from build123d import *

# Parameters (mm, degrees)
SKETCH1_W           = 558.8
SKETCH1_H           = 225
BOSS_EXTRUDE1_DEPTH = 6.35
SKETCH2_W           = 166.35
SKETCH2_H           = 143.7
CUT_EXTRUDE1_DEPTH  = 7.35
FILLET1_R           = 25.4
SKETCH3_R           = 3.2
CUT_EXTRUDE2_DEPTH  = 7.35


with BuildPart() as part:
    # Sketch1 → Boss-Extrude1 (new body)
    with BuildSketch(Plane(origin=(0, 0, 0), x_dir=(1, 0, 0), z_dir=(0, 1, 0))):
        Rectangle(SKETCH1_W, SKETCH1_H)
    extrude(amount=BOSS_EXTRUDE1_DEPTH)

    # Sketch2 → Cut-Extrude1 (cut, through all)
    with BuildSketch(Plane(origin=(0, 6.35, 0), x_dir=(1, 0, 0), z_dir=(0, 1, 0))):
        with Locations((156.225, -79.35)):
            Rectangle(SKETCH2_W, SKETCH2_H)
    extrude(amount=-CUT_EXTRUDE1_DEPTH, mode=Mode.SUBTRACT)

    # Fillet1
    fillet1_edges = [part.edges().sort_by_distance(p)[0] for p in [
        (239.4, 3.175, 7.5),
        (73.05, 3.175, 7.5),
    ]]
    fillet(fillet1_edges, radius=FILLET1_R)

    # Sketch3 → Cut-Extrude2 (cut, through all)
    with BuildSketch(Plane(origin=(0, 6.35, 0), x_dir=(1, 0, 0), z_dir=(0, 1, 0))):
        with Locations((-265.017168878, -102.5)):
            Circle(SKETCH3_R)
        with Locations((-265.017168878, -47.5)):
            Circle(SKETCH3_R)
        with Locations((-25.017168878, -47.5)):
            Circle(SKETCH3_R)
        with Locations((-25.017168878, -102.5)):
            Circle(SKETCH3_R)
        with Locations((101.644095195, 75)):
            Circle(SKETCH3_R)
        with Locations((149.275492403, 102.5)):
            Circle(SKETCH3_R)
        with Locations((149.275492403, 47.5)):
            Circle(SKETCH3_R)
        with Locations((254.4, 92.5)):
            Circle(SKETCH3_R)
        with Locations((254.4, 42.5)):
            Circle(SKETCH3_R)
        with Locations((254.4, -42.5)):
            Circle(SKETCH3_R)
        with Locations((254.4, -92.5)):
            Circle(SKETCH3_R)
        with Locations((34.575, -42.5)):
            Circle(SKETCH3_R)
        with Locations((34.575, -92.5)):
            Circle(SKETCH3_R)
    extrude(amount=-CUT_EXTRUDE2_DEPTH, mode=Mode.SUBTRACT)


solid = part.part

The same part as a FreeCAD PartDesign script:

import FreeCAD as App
import Part
import Sketcher
Q = App.Units.Quantity


def edges_at(feature, points):
    """Names of the edges that pass closest to the given points."""
    edges = feature.Shape.Edges
    near = lambda p: min(range(len(edges)), key=lambda i: edges[i].distToShape(Part.Vertex(*p))[0])
    return sorted({f"Edge{near(p) + 1}" for p in points})

doc = App.newDocument("Part")
body = doc.addObject("PartDesign::Body", "Body")

# Sketch on XZ plane
sketch1 = doc.addObject("Sketcher::SketchObject", "Sketch")
body.addObject(sketch1)
sketch1.AttachmentSupport = (doc.XZ_Plane, [""])
sketch1.MapMode = "FlatFace"
sketch1.addGeometry(Part.LineSegment(App.Vector(-279, -112, 0), App.Vector(-279, 112, 0)), False)
sketch1.addGeometry(Part.LineSegment(App.Vector(-279, 112, 0), App.Vector(279, 112, 0)), False)
sketch1.addGeometry(Part.LineSegment(App.Vector(279, 112, 0), App.Vector(279, -112, 0)), False)
sketch1.addGeometry(Part.LineSegment(App.Vector(279, -112, 0), App.Vector(-279, -112, 0)), False)
sketch1.addConstraint(Sketcher.Constraint("Coincident", 0, 2, 1, 1))
sketch1.addConstraint(Sketcher.Constraint("Coincident", 1, 2, 2, 1))
sketch1.addConstraint(Sketcher.Constraint("Coincident", 2, 2, 3, 1))
sketch1.addConstraint(Sketcher.Constraint("Coincident", 3, 2, 0, 1))
sketch1.addConstraint(Sketcher.Constraint("Vertical", 0))
sketch1.addConstraint(Sketcher.Constraint("Horizontal", 1))
sketch1.addConstraint(Sketcher.Constraint("Vertical", 2))
sketch1.addConstraint(Sketcher.Constraint("Horizontal", 3))
sketch1.addConstraint(Sketcher.Constraint("Symmetric", 0, 2, 2, 2, -1, 1))
sketch1.addConstraint(Sketcher.Constraint("DistanceY", 0, 1, 0, 2, Q("225 mm")))
sketch1.addConstraint(Sketcher.Constraint("DistanceX", 1, 1, 1, 2, Q("558.8 mm")))
pad1 = doc.addObject("PartDesign::Pad", "Pad")
body.addObject(pad1)
pad1.Profile = sketch1
pad1.Length = 6.35
pad1.Reversed = True

# Sketch on XZ plane
sketch2 = doc.addObject("Sketcher::SketchObject", "Sketch001")
body.addObject(sketch2)
sketch2.AttachmentSupport = (doc.XZ_Plane, [""])
sketch2.MapMode = "FlatFace"
sketch2.AttachmentOffset = App.Placement(App.Vector(0, 0, -6.35), App.Rotation())
sketch2.addGeometry(Part.LineSegment(App.Vector(73, 8, 0), App.Vector(73, 151, 0)), False)
sketch2.addGeometry(Part.LineSegment(App.Vector(73, 151, 0), App.Vector(239, 151, 0)), False)
sketch2.addGeometry(Part.LineSegment(App.Vector(239, 151, 0), App.Vector(239, 8, 0)), False)
sketch2.addGeometry(Part.LineSegment(App.Vector(239, 8, 0), App.Vector(73, 8, 0)), False)
sketch2.addConstraint(Sketcher.Constraint("Coincident", 0, 2, 1, 1))
sketch2.addConstraint(Sketcher.Constraint("Coincident", 1, 2, 2, 1))
sketch2.addConstraint(Sketcher.Constraint("Coincident", 2, 2, 3, 1))
sketch2.addConstraint(Sketcher.Constraint("Coincident", 3, 2, 0, 1))
sketch2.addConstraint(Sketcher.Constraint("Vertical", 0))
sketch2.addConstraint(Sketcher.Constraint("Horizontal", 1))
sketch2.addConstraint(Sketcher.Constraint("Vertical", 2))
sketch2.addConstraint(Sketcher.Constraint("Horizontal", 3))
sketch2.addConstraint(Sketcher.Constraint("DistanceY", 0, 1, 0, 2, Q("143.7 mm")))
sketch2.addConstraint(Sketcher.Constraint("DistanceX", 1, 1, 1, 2, Q("166.35 mm")))
sketch2.addConstraint(Sketcher.Constraint("DistanceY", -1, 1, 0, 2, Q("151.2 mm")))
sketch2.addConstraint(Sketcher.Constraint("DistanceX", -1, 1, 1, 2, Q("239.4 mm")))
pocket1 = doc.addObject("PartDesign::Pocket", "Pocket")
body.addObject(pocket1)
pocket1.Profile = sketch2
pocket1.Type = "ThroughAll"
pocket1.Reversed = True
doc.recompute()

fillet = doc.addObject("PartDesign::Fillet", "Fillet")
body.addObject(fillet)
fillet.Base = (pocket1, edges_at(pocket1, [(239.4, 3.175, 7.5), (73.05, 3.175, 7.5)]))
fillet.Radius = 25.4

# Sketch on XZ plane
sketch3 = doc.addObject("Sketcher::SketchObject", "Sketch002")
body.addObject(sketch3)
sketch3.AttachmentSupport = (doc.XZ_Plane, [""])
sketch3.MapMode = "FlatFace"
sketch3.AttachmentOffset = App.Placement(App.Vector(0, 0, -6.35), App.Rotation())
sketch3.addGeometry(Part.Circle(App.Vector(-265, 102.5, 0), App.Vector(0, 0, 1), 3.2), False)
sketch3.addGeometry(Part.Circle(App.Vector(-265, 47.5, 0), App.Vector(0, 0, 1), 3.2), False)
sketch3.addGeometry(Part.Circle(App.Vector(-25, 47.5, 0), App.Vector(0, 0, 1), 3.2), False)
sketch3.addGeometry(Part.Circle(App.Vector(-25, 102.5, 0), App.Vector(0, 0, 1), 3.2), False)
sketch3.addGeometry(Part.Circle(App.Vector(101.6, -75, 0), App.Vector(0, 0, 1), 3.2), False)
sketch3.addGeometry(Part.Circle(App.Vector(149.3, -102.5, 0), App.Vector(0, 0, 1), 3.2), False)
sketch3.addGeometry(Part.Circle(App.Vector(149.3, -47.5, 0), App.Vector(0, 0, 1), 3.2), False)
sketch3.addGeometry(Part.Circle(App.Vector(254.4, -92.5, 0), App.Vector(0, 0, 1), 3.2), False)
sketch3.addGeometry(Part.Circle(App.Vector(254.4, -42.5, 0), App.Vector(0, 0, 1), 3.2), False)
sketch3.addGeometry(Part.Circle(App.Vector(254.4, 42.5, 0), App.Vector(0, 0, 1), 3.2), False)
sketch3.addGeometry(Part.Circle(App.Vector(254.4, 92.5, 0), App.Vector(0, 0, 1), 3.2), False)
sketch3.addGeometry(Part.Circle(App.Vector(34.6, 42.5, 0), App.Vector(0, 0, 1), 3.2), False)
sketch3.addGeometry(Part.Circle(App.Vector(34.6, 92.5, 0), App.Vector(0, 0, 1), 3.2), False)
sketch3.addConstraint(Sketcher.Constraint("Equal", 0, 1))
sketch3.addConstraint(Sketcher.Constraint("Equal", 1, 2))
sketch3.addConstraint(Sketcher.Constraint("Equal", 2, 3))
sketch3.addConstraint(Sketcher.Constraint("Equal", 3, 4))
sketch3.addConstraint(Sketcher.Constraint("Equal", 4, 5))
sketch3.addConstraint(Sketcher.Constraint("Equal", 5, 6))
sketch3.addConstraint(Sketcher.Constraint("Equal", 6, 7))
sketch3.addConstraint(Sketcher.Constraint("Equal", 7, 8))
sketch3.addConstraint(Sketcher.Constraint("Equal", 8, 9))
sketch3.addConstraint(Sketcher.Constraint("Equal", 9, 10))
sketch3.addConstraint(Sketcher.Constraint("Equal", 10, 11))
sketch3.addConstraint(Sketcher.Constraint("Equal", 11, 12))
sketch3.addConstraint(Sketcher.Constraint("Symmetric", 8, 3, 9, 3, -1))
sketch3.addConstraint(Sketcher.Constraint("Symmetric", 7, 3, 10, 3, -1))
sketch3.addConstraint(Sketcher.Constraint("Horizontal", 1, 3, 2, 3))
sketch3.addConstraint(Sketcher.Constraint("Horizontal", 0, 3, 3, 3))
sketch3.addConstraint(Sketcher.Constraint("Horizontal", 9, 3, 11, 3))
sketch3.addConstraint(Sketcher.Constraint("Horizontal", 10, 3, 12, 3))
sketch3.addConstraint(Sketcher.Constraint("Vertical", 0, 3, 1, 3))
sketch3.addConstraint(Sketcher.Constraint("Vertical", 2, 3, 3, 3))
sketch3.addConstraint(Sketcher.Constraint("Vertical", 5, 3, 6, 3))
sketch3.addConstraint(Sketcher.Constraint("Vertical", 7, 3, 8, 3))
sketch3.addConstraint(Sketcher.Constraint("Vertical", 11, 3, 12, 3))
sketch3.addConstraint(Sketcher.Constraint("Diameter", 0, Q("6.4 mm")))
sketch3.addConstraint(Sketcher.Constraint("DistanceY", 4, 3, -1, 1, Q("75 mm")))
sketch3.addConstraint(Sketcher.Constraint("DistanceY", 1, 3, 0, 3, Q("55 mm")))
sketch3.addConstraint(Sketcher.Constraint("DistanceX", 1, 3, 2, 3, Q("240 mm")))
sketch3.addConstraint(Sketcher.Constraint("DistanceY", 5, 3, 2, 3, Q("150 mm")))
sketch3.addConstraint(Sketcher.Constraint("DistanceY", 5, 3, 6, 3, Q("55 mm")))
sketch3.addConstraint(Sketcher.Constraint("DistanceY", 5, 3, 7, 3, Q("10 mm")))
sketch3.addConstraint(Sketcher.Constraint("DistanceY", 7, 3, 8, 3, Q("50 mm")))
sketch3.addConstraint(Sketcher.Constraint("DistanceY", 8, 3, 9, 3, Q("85 mm")))
sketch3.addConstraint(Sketcher.Constraint("DistanceX", -1, 1, 7, 3, Q("254.4 mm")))
sketch3.addConstraint(Sketcher.Constraint("DistanceX", -1, 1, 11, 3, Q("34.575 mm")))
sketch3.addConstraint(Sketcher.Constraint("DistanceX", 0, 3, -1, 1, Q("265.017169 mm")))
sketch3.addConstraint(Sketcher.Constraint("DistanceX", 2, 3, 5, 3, Q("174.292661 mm")))
sketch3.addConstraint(Sketcher.Constraint("DistanceX", -1, 1, 4, 3, Q("101.644095 mm")))
pocket2 = doc.addObject("PartDesign::Pocket", "Pocket001")
body.addObject(pocket2)
pocket2.Profile = sketch3
pocket2.Type = "ThroughAll"
pocket2.Reversed = True

doc.recompute()
